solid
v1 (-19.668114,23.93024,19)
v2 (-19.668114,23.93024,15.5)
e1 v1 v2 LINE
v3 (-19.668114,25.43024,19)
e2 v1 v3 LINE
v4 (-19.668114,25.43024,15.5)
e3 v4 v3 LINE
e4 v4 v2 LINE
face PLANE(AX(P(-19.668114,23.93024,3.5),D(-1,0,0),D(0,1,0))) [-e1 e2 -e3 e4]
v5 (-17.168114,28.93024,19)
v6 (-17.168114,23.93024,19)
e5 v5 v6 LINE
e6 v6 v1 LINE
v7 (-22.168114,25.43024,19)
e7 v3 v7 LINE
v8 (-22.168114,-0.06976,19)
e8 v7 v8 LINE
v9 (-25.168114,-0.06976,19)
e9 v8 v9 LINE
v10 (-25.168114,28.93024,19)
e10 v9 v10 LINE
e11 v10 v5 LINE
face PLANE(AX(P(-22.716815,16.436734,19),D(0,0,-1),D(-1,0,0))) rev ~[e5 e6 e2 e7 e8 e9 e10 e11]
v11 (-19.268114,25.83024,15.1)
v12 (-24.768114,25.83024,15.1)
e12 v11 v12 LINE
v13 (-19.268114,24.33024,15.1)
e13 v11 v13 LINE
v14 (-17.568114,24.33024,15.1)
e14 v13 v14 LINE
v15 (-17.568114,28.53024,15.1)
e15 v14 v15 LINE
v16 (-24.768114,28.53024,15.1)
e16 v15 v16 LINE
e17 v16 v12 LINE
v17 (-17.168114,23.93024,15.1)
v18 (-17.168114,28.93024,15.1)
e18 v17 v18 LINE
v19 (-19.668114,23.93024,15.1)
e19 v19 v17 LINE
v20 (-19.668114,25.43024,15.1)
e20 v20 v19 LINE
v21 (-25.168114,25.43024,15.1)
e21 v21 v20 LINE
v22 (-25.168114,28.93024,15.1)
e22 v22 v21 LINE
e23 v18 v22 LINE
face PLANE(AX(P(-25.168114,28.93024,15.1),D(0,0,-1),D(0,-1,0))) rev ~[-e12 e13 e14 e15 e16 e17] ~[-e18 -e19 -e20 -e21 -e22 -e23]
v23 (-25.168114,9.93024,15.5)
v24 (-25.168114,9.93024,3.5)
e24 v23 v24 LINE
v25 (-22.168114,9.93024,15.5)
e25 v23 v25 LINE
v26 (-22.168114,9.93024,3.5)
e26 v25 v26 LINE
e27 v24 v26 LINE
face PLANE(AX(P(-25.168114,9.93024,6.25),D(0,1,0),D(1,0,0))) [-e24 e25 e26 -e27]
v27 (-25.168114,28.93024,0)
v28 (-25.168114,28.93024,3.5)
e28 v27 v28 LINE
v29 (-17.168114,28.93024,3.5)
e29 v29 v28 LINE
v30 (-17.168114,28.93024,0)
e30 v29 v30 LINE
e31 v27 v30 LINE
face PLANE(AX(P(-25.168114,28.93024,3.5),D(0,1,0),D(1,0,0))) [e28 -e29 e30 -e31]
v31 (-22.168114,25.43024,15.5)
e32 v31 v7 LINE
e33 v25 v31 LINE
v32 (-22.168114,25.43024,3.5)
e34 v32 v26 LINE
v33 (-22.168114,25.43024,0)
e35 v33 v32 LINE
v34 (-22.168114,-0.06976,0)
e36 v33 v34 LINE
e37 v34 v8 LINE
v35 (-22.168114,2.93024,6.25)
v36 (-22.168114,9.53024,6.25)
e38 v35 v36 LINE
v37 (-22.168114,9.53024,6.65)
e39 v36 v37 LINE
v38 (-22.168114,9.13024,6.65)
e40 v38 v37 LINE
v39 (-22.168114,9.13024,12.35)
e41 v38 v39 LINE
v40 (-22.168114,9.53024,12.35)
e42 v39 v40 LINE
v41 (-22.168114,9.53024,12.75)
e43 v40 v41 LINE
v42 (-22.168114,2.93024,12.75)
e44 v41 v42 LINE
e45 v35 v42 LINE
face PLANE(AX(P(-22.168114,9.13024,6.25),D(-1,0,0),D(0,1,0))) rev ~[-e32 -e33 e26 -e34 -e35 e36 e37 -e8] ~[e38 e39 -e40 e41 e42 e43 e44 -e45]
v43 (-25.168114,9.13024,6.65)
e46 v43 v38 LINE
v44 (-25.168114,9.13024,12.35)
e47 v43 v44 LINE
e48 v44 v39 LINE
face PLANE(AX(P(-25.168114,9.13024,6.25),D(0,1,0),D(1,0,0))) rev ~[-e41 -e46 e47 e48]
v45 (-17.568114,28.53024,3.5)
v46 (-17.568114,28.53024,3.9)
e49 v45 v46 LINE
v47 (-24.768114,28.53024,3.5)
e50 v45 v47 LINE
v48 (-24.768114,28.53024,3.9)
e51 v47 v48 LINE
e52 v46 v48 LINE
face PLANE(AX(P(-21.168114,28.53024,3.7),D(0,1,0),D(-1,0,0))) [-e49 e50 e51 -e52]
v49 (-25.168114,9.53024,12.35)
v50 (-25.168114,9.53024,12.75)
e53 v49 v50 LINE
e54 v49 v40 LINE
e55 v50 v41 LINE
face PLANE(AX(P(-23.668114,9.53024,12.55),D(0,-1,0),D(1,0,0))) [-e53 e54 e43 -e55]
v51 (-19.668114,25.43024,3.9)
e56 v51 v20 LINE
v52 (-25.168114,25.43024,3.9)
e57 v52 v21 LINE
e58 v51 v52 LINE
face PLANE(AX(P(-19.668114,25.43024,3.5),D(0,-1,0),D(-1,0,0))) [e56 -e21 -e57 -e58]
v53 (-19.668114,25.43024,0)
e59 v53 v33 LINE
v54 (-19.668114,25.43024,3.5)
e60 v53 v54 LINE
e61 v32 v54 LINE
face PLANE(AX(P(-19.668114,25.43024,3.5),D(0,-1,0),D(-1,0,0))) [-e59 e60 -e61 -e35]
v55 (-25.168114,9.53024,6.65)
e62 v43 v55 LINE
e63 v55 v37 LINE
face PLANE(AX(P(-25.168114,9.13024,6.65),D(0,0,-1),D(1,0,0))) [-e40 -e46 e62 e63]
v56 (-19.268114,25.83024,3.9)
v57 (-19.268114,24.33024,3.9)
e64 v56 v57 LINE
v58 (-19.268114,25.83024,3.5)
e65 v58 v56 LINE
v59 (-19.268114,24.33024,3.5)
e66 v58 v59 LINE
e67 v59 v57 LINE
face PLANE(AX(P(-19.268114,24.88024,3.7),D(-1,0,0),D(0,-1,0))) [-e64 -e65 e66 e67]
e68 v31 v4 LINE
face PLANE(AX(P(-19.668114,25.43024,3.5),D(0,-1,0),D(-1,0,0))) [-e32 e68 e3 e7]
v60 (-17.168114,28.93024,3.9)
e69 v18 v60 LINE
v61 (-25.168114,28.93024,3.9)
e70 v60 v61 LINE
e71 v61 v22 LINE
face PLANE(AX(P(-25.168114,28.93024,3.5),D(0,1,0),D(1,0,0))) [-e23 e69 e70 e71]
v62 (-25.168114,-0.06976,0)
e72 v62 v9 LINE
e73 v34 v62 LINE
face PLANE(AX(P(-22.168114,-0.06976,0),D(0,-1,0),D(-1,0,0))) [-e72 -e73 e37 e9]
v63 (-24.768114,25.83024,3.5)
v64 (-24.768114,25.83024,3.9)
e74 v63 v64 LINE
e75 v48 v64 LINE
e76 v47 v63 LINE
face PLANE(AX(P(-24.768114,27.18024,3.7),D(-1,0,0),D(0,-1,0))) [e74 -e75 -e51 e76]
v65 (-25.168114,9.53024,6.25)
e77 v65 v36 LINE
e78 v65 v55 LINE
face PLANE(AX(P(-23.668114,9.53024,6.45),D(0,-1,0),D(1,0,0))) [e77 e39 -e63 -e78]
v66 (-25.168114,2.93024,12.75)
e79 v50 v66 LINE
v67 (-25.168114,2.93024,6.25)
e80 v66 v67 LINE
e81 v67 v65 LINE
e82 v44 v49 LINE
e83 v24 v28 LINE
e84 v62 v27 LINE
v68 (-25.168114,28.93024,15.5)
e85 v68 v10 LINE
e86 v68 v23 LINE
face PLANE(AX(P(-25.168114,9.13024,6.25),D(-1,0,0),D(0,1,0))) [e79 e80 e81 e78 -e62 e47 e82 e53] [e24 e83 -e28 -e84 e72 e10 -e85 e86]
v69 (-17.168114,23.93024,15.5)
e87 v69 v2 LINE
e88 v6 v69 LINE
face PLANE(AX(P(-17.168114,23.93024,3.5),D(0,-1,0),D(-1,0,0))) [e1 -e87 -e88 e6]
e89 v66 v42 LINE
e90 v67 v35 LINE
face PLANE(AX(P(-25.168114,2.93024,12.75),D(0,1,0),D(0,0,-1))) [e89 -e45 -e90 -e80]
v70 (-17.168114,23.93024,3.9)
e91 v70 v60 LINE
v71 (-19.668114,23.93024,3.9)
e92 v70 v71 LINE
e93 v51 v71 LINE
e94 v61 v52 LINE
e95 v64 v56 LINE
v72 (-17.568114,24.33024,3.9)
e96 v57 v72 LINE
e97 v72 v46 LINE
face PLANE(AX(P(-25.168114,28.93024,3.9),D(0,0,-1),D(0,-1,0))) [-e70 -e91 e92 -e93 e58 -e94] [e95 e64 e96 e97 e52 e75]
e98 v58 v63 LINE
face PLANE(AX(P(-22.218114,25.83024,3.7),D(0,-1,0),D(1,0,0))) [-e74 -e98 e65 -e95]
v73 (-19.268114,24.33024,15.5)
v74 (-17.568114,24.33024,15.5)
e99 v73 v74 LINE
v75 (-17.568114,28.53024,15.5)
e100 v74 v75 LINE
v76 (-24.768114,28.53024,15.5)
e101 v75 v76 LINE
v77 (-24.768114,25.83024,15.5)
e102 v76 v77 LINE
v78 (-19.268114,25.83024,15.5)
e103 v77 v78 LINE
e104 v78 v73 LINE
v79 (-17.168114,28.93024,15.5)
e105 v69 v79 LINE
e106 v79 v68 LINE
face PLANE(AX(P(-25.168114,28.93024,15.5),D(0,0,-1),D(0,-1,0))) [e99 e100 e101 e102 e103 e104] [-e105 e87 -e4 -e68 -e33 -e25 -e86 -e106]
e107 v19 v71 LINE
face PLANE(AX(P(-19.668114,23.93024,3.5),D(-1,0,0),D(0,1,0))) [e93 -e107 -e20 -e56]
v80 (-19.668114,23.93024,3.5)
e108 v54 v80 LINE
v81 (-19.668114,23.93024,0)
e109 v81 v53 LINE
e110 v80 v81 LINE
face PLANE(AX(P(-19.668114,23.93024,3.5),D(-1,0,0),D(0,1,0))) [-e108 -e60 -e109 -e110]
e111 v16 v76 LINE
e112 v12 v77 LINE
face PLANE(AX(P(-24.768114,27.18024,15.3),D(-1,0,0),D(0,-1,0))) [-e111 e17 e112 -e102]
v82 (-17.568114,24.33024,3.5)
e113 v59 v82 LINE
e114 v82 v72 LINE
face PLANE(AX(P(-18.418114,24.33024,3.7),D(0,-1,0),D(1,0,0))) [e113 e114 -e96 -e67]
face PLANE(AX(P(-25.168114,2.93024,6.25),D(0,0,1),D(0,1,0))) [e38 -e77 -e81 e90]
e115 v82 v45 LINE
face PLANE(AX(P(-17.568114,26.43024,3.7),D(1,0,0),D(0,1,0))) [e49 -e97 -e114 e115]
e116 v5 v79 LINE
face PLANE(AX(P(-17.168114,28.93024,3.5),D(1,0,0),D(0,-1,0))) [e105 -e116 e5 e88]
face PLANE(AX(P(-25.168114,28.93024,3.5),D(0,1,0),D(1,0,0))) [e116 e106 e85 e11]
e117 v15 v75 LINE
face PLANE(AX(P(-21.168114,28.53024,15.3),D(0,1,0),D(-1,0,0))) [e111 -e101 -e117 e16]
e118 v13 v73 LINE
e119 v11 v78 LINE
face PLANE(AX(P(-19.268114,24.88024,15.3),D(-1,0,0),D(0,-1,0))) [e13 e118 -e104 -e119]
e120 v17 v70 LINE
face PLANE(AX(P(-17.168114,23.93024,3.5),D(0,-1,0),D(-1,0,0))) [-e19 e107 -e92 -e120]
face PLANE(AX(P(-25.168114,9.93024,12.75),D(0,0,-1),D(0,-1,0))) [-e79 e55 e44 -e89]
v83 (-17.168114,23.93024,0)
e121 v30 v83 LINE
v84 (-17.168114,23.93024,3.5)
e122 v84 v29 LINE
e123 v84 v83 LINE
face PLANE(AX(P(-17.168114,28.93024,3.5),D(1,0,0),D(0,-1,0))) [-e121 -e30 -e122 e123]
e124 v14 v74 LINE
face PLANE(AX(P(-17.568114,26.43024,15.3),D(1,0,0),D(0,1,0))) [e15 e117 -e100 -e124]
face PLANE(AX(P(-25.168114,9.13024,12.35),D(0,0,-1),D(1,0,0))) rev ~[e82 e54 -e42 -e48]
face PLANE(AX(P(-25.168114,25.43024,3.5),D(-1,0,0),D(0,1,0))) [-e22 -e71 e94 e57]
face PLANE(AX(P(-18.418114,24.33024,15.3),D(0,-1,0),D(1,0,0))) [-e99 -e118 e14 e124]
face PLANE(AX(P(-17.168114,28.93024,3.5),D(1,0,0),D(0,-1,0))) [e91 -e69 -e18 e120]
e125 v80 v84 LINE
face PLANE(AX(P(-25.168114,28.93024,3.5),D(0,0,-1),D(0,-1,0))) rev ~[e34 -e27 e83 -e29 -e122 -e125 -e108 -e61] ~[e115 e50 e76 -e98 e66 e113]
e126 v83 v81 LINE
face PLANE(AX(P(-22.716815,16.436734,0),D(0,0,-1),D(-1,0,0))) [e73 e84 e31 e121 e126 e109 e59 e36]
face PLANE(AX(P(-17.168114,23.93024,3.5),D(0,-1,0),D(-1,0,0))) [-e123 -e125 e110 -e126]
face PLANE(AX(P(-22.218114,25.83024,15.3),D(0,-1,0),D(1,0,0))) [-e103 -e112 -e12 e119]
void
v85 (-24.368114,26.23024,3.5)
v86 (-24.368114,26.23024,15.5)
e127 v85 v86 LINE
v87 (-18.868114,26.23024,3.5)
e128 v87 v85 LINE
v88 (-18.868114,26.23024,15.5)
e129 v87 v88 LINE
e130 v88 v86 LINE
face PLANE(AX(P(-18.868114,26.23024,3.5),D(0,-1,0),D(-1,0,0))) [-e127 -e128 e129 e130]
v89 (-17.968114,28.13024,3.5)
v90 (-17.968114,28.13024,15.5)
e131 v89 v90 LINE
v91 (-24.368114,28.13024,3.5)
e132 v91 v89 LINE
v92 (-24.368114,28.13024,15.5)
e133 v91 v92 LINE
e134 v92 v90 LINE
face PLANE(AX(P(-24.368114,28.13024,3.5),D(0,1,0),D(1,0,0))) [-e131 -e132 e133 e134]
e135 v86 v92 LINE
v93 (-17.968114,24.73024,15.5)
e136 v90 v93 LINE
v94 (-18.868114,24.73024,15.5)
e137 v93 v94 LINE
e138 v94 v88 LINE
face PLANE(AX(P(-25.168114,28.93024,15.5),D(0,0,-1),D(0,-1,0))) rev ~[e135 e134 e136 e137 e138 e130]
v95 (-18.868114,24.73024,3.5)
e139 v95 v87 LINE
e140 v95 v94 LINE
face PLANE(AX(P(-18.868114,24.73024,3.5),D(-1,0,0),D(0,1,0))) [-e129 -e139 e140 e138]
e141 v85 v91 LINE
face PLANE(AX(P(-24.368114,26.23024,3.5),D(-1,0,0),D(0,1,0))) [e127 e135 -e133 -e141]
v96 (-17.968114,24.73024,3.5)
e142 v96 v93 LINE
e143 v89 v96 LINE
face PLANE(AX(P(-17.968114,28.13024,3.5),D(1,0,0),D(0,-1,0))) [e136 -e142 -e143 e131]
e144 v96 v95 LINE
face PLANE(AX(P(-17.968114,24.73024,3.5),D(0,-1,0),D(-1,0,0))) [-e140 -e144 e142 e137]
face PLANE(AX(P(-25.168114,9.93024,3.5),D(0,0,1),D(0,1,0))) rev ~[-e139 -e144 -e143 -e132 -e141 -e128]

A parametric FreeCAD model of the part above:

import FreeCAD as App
import Part
import Sketcher

V = App.Vector
Q = App.Units.Quantity

doc = App.newDocument("Part")
params = doc.addObject("Spreadsheet::Sheet", "Params")
for row, (alias, value) in enumerate([
    ("sketch1_width", "8 mm"),
    ("sketch1_width2", "3 mm"),
    ("sketch1_height", "29 mm"),
    ("sketch1_height2", "5 mm"),
    ("sketch1_height3", "25.5 mm"),
    ("pad1_length", "19 mm"),
    ("sketch2_width", "19 mm"),
    ("sketch2_width2", "7 mm"),
    ("sketch2_height", "12 mm"),
    ("sketch2_height2", "6.5 mm"),
    ("sketch3_width", "8 mm"),
    ("sketch3_height", "5 mm"),
    ("sketch3_width2", "5.5 mm"),
    ("sketch3_width3", "6.4 mm"),
    ("sketch3_height2", "3.5 mm"),
    ("pad2_length", "12 mm"),
    ("sketch4_width", "3.5 mm"),
    ("sketch4_height", "0.4 mm"),
    ("pocket2_length", "0.4 mm"),
    ("sketch5_width", "5 mm"),
    ("sketch5_height", "0.4 mm"),
    ("pocket3_length", "0.4 mm"),
    ("sketch6_width", "1.9 mm"),
    ("sketch6_height", "0.4 mm"),
    ("pocket4_length", "0.4 mm"),
    ("sketch7_width", "5.1 mm"),
    ("sketch7_height", "0.4 mm"),
    ("pocket5_length", "0.4 mm"),
    ("sketch8_width", "1.7 mm"),
    ("sketch8_height", "0.4 mm"),
    ("pocket6_length", "0.4 mm"),
    ("sketch9_width", "7.2 mm"),
    ("sketch9_height", "0.4 mm"),
    ("pocket7_length", "0.4 mm"),
    ("sketch10_width", "3 mm"),
    ("sketch10_height", "0.8 mm"),
    ("pad3_length", "7 mm"),
    ("sketch11_width", "3 mm"),
    ("sketch11_height", "0.4 mm"),
    ("pocket8_length", "0.4 mm"),
], start=1):
    params.set(f"A{row}", alias)
    params.set(f"B{row}", "=" + value)
    params.setAlias(f"B{row}", alias)

body = doc.addObject("PartDesign::Body", "Body")

sketch1 = body.newObject("Sketcher::SketchObject", "Sketch")
sketch1.AttachmentSupport = (doc.getObject("XY_Plane"), [""])
sketch1.MapMode = "FlatFace"
sketch1.addGeometry(Part.LineSegment(V(-17.2, 28.9, 0), V(-25.2, 28.9, 0)), False)
sketch1.addGeometry(Part.LineSegment(V(-25.2, 28.9, 0), V(-25.2, -0.1, 0)), False)
sketch1.addGeometry(Part.LineSegment(V(-25.2, -0.1, 0), V(-22.2, -0.1, 0)), False)
sketch1.addGeometry(Part.LineSegment(V(-22.2, -0.1, 0), V(-22.2, 25.4, 0)), False)
sketch1.addGeometry(Part.LineSegment(V(-22.2, 25.4, 0), V(-19.7, 25.4, 0)), False)
sketch1.addGeometry(Part.LineSegment(V(-19.7, 25.4, 0), V(-19.7, 23.9, 0)), False)
sketch1.addGeometry(Part.LineSegment(V(-19.7, 23.9, 0), V(-17.2, 23.9, 0)), False)
sketch1.addGeometry(Part.LineSegment(V(-17.2, 23.9, 0), V(-17.2, 28.9, 0)), False)
sketch1.addConstraint(Sketcher.Constraint("Coincident", 0, 2, 1, 1))
sketch1.addConstraint(Sketcher.Constraint("Coincident", 1, 2, 2, 1))
sketch1.addConstraint(Sketcher.Constraint("Coincident", 2, 2, 3, 1))
sketch1.addConstraint(Sketcher.Constraint("Coincident", 3, 2, 4, 1))
sketch1.addConstraint(Sketcher.Constraint("Coincident", 4, 2, 5, 1))
sketch1.addConstraint(Sketcher.Constraint("Coincident", 5, 2, 6, 1))
sketch1.addConstraint(Sketcher.Constraint("Coincident", 6, 2, 7, 1))
sketch1.addConstraint(Sketcher.Constraint("Coincident", 7, 2, 0, 1))
sketch1.addConstraint(Sketcher.Constraint("Horizontal", 0))
sketch1.addConstraint(Sketcher.Constraint("Vertical", 1))
sketch1.addConstraint(Sketcher.Constraint("Horizontal", 2))
sketch1.addConstraint(Sketcher.Constraint("Vertical", 3))
sketch1.addConstraint(Sketcher.Constraint("Horizontal", 4))
sketch1.addConstraint(Sketcher.Constraint("Vertical", 5))
sketch1.addConstraint(Sketcher.Constraint("Horizontal", 6))
sketch1.addConstraint(Sketcher.Constraint("Vertical", 7))
sketch1.addConstraint(Sketcher.Constraint("Equal", 4, 6))
sketch1.addConstraint(Sketcher.Constraint("DistanceX", 0, 2, 0, 1, Q("8 mm")))
sketch1.addConstraint(Sketcher.Constraint("DistanceX", 2, 1, 2, 2, Q("3 mm")))
sketch1.addConstraint(Sketcher.Constraint("DistanceY", 1, 2, 1, 1, Q("29 mm")))
sketch1.addConstraint(Sketcher.Constraint("DistanceY", 7, 1, 7, 2, Q("5 mm")))
sketch1.addConstraint(Sketcher.Constraint("DistanceY", 3, 1, 3, 2, Q("25.5 mm")))
sketch1.addConstraint(Sketcher.Constraint("DistanceY", -1, 1, 0, 2, Q("28.93024 mm")))
sketch1.addConstraint(Sketcher.Constraint("DistanceX", 0, 2, -1, 1, Q("25.168114 mm")))
sketch1.setExpression("Constraints[17]", "Params.sketch1_width")
sketch1.setExpression("Constraints[18]", "Params.sketch1_width2")
sketch1.setExpression("Constraints[19]", "Params.sketch1_height")
sketch1.setExpression("Constraints[20]", "Params.sketch1_height2")
sketch1.setExpression("Constraints[21]", "Params.sketch1_height3")
pad1 = body.newObject("PartDesign::Pad", "Pad")
pad1.Profile = sketch1
pad1.setExpression("Length", "Params.pad1_length")

sketch2 = body.newObject("Sketcher::SketchObject", "Sketch001")
sketch2.AttachmentSupport = (doc.getObject("YZ_Plane"), [""])
sketch2.MapMode = "FlatFace"
sketch2.AttachmentOffset = App.Placement(V(0, 0, -25.168114), App.Rotation())
sketch2.addGeometry(Part.LineSegment(V(9.9, 15.5, 0), V(28.9, 15.5, 0)), False)
sketch2.addGeometry(Part.LineSegment(V(28.9, 15.5, 0), V(28.9, 3.5, 0)), False)
sketch2.addGeometry(Part.LineSegment(V(28.9, 3.5, 0), V(9.9, 3.5, 0)), False)
sketch2.addGeometry(Part.LineSegment(V(9.9, 3.5, 0), V(9.9, 6.2, 0)), False)
sketch2.addGeometry(Part.LineSegment(V(9.9, 6.2, 0), V(2.9, 6.2, 0)), False)
sketch2.addGeometry(Part.LineSegment(V(2.9, 6.2, 0), V(2.9, 12.8, 0)), False)
sketch2.addGeometry(Part.LineSegment(V(2.9, 12.8, 0), V(9.9, 12.8, 0)), False)
sketch2.addGeometry(Part.LineSegment(V(9.9, 12.8, 0), V(9.9, 15.5, 0)), False)
sketch2.addConstraint(Sketcher.Constraint("Coincident", 0, 2, 1, 1))
sketch2.addConstraint(Sketcher.Constraint("Coincident", 1, 2, 2, 1))
sketch2.addConstraint(Sketcher.Constraint("Coincident", 2, 2, 3, 1))
sketch2.addConstraint(Sketcher.Constraint("Coincident", 3, 2, 4, 1))
sketch2.addConstraint(Sketcher.Constraint("Coincident", 4, 2, 5, 1))
sketch2.addConstraint(Sketcher.Constraint("Coincident", 5, 2, 6, 1))
sketch2.addConstraint(Sketcher.Constraint("Coincident", 6, 2, 7, 1))
sketch2.addConstraint(Sketcher.Constraint("Coincident", 7, 2, 0, 1))
sketch2.addConstraint(Sketcher.Constraint("Horizontal", 0))
sketch2.addConstraint(Sketcher.Constraint("Vertical", 1))
sketch2.addConstraint(Sketcher.Constraint("Horizontal", 2))
sketch2.addConstraint(Sketcher.Constraint("Vertical", 3))
sketch2.addConstraint(Sketcher.Constraint("Horizontal", 4))
sketch2.addConstraint(Sketcher.Constraint("Vertical", 5))
sketch2.addConstraint(Sketcher.Constraint("Horizontal", 6))
sketch2.addConstraint(Sketcher.Constraint("Vertical", 7))
sketch2.addConstraint(Sketcher.Constraint("Vertical", 3, 2, 6, 2))
sketch2.addConstraint(Sketcher.Constraint("Equal", 3, 7))
sketch2.addConstraint(Sketcher.Constraint("DistanceX", 0, 1, 0, 2, Q("19 mm")))
sketch2.addConstraint(Sketcher.Constraint("DistanceX", 4, 2, 4, 1, Q("7 mm")))
sketch2.addConstraint(Sketcher.Constraint("DistanceY", 1, 2, 1, 1, Q("12 mm")))
sketch2.addConstraint(Sketcher.Constraint("DistanceY", 5, 1, 5, 2, Q("6.5 mm")))
sketch2.addConstraint(Sketcher.Constraint("DistanceY", -1, 1, 0, 2, Q("15.5 mm")))
sketch2.addConstraint(Sketcher.Constraint("DistanceX", -1, 1, 0, 2, Q("28.93024 mm")))
sketch2.setExpression("Constraints[18]", "Params.sketch2_width")
sketch2.setExpression("Constraints[19]", "Params.sketch2_width2")
sketch2.setExpression("Constraints[20]", "Params.sketch2_height")
sketch2.setExpression("Constraints[21]", "Params.sketch2_height2")
pocket1 = body.newObject("PartDesign::Pocket", "Pocket")
pocket1.Profile = sketch2
pocket1.Type = "ThroughAll"
pocket1.Reversed = True

sketch3 = body.newObject("Sketcher::SketchObject", "Sketch002")
sketch3.AttachmentSupport = (doc.getObject("XY_Plane"), [""])
sketch3.MapMode = "FlatFace"
sketch3.AttachmentOffset = App.Placement(V(0, 0, 3.5), App.Rotation())
sketch3.addGeometry(Part.LineSegment(V(-17.2, 28.9, 0), V(-25.2, 28.9, 0)), False)
sketch3.addGeometry(Part.LineSegment(V(-25.2, 28.9, 0), V(-25.2, 25.4, 0)), False)
sketch3.addGeometry(Part.LineSegment(V(-25.2, 25.4, 0), V(-19.7, 25.4, 0)), False)
sketch3.addGeometry(Part.LineSegment(V(-19.7, 25.4, 0), V(-19.7, 23.9, 0)), False)
sketch3.addGeometry(Part.LineSegment(V(-19.7, 23.9, 0), V(-17.2, 23.9, 0)), False)
sketch3.addGeometry(Part.LineSegment(V(-17.2, 23.9, 0), V(-17.2, 28.9, 0)), False)
sketch3.addGeometry(Part.LineSegment(V(-24.4, 26.2, 0), V(-24.4, 28.1, 0)), False)
sketch3.addGeometry(Part.LineSegment(V(-24.4, 28.1, 0), V(-18, 28.1, 0)), False)
sketch3.addGeometry(Part.LineSegment(V(-18, 28.1, 0), V(-18, 24.7, 0)), False)
sketch3.addGeometry(Part.LineSegment(V(-18, 24.7, 0), V(-18.9, 24.7, 0)), False)
sketch3.addGeometry(Part.LineSegment(V(-18.9, 24.7, 0), V(-18.9, 26.2, 0)), False)
sketch3.addGeometry(Part.LineSegment(V(-18.9, 26.2, 0), V(-24.4, 26.2, 0)), False)
sketch3.addConstraint(Sketcher.Constraint("Coincident", 0, 2, 1, 1))
sketch3.addConstraint(Sketcher.Constraint("Coincident", 1, 2, 2, 1))
sketch3.addConstraint(Sketcher.Constraint("Coincident", 2, 2, 3, 1))
sketch3.addConstraint(Sketcher.Constraint("Coincident", 3, 2, 4, 1))
sketch3.addConstraint(Sketcher.Constraint("Coincident", 4, 2, 5, 1))
sketch3.addConstraint(Sketcher.Constraint("Coincident", 5, 2, 0, 1))
sketch3.addConstraint(Sketcher.Constraint("Coincident", 6, 2, 7, 1))
sketch3.addConstraint(Sketcher.Constraint("Coincident", 7, 2, 8, 1))
sketch3.addConstraint(Sketcher.Constraint("Coincident", 8, 2, 9, 1))
sketch3.addConstraint(Sketcher.Constraint("Coincident", 9, 2, 10, 1))
sketch3.addConstraint(Sketcher.Constraint("Coincident", 10, 2, 11, 1))
sketch3.addConstraint(Sketcher.Constraint("Coincident", 11, 2, 6, 1))
sketch3.addConstraint(Sketcher.Constraint("Horizontal", 0))
sketch3.addConstraint(Sketcher.Constraint("Vertical", 1))
sketch3.addConstraint(Sketcher.Constraint("Horizontal", 2))
sketch3.addConstraint(Sketcher.Constraint("Vertical", 3))
sketch3.addConstraint(Sketcher.Constraint("Horizontal", 4))
sketch3.addConstraint(Sketcher.Constraint("Vertical", 5))
sketch3.addConstraint(Sketcher.Constraint("Vertical", 6))
sketch3.addConstraint(Sketcher.Constraint("Horizontal", 7))
sketch3.addConstraint(Sketcher.Constraint("Vertical", 8))
sketch3.addConstraint(Sketcher.Constraint("Horizontal", 9))
sketch3.addConstraint(Sketcher.Constraint("Vertical", 10))
sketch3.addConstraint(Sketcher.Constraint("Horizontal", 11))
sketch3.addConstraint(Sketcher.Constraint("Equal", 2, 11))
sketch3.addConstraint(Sketcher.Constraint("Equal", 3, 10))
sketch3.addConstraint(Sketcher.Constraint("DistanceX", 0, 2, 0, 1, Q("8 mm")))
sketch3.addConstraint(Sketcher.Constraint("DistanceY", 5, 1, 5, 2, Q("5 mm")))
sketch3.addConstraint(Sketcher.Constraint("DistanceX", 2, 1, 2, 2, Q("5.5 mm")))
sketch3.addConstraint(Sketcher.Constraint("DistanceX", 7, 1, 7, 2, Q("6.4 mm")))
sketch3.addConstraint(Sketcher.Constraint("DistanceY", 1, 2, 1, 1, Q("3.5 mm")))
sketch3.addConstraint(Sketcher.Constraint("DistanceY", 6, 1, 6, 2, Q("1.9 mm")))
sketch3.addConstraint(Sketcher.Constraint("DistanceX", 0, 2, 6, 2, Q("0.8 mm")))
sketch3.addConstraint(Sketcher.Constraint("DistanceY", 6, 2, 0, 2, Q("0.8 mm")))
sketch3.addConstraint(Sketcher.Constraint("DistanceY", -1, 1, 0, 2, Q("28.93024 mm")))
sketch3.addConstraint(Sketcher.Constraint("DistanceX", 0, 2, -1, 1, Q("25.168114 mm")))
sketch3.setExpression("Constraints[26]", "Params.sketch3_width")
sketch3.setExpression("Constraints[27]", "Params.sketch3_height")
sketch3.setExpression("Constraints[28]", "Params.sketch3_width2")
sketch3.setExpression("Constraints[29]", "Params.sketch3_width3")
sketch3.setExpression("Constraints[30]", "Params.sketch3_height2")
pad2 = body.newObject("PartDesign::Pad", "Pad001")
pad2.Profile = sketch3
pad2.setExpression("Length", "Params.pad2_length")

sketch4 = body.newObject("Sketcher::SketchObject", "Sketch003")
sketch4.AttachmentSupport = (doc.getObject("YZ_Plane"), [""])
sketch4.MapMode = "FlatFace"
sketch4.AttachmentOffset = App.Placement(V(0, 0, -25.168114), App.Rotation())
sketch4.addGeometry(Part.LineSegment(V(28.93, 15.5, 0), V(28.93, 15.1, 0)), False)
sketch4.addGeometry(Part.LineSegment(V(28.93, 15.1, 0), V(25.43, 15.1, 0)), False)
sketch4.addGeometry(Part.LineSegment(V(25.43, 15.1, 0), V(25.43, 15.5, 0)), False)
sketch4.addGeometry(Part.LineSegment(V(25.43, 15.5, 0), V(28.93, 15.5, 0)), False)
sketch4.addGeometry(Part.LineSegment(V(28.93, 3.9, 0), V(28.93, 3.5, 0)), False)
sketch4.addGeometry(Part.LineSegment(V(28.93, 3.5, 0), V(25.43, 3.5, 0)), False)
sketch4.addGeometry(Part.LineSegment(V(25.43, 3.5, 0), V(25.43, 3.9, 0)), False)
sketch4.addGeometry(Part.LineSegment(V(25.43, 3.9, 0), V(28.93, 3.9, 0)), False)
sketch4.addConstraint(Sketcher.Constraint("Coincident", 0, 2, 1, 1))
sketch4.addConstraint(Sketcher.Constraint("Coincident", 1, 2, 2, 1))
sketch4.addConstraint(Sketcher.Constraint("Coincident", 2, 2, 3, 1))
sketch4.addConstraint(Sketcher.Constraint("Coincident", 3, 2, 0, 1))
sketch4.addConstraint(Sketcher.Constraint("Coincident", 4, 2, 5, 1))
sketch4.addConstraint(Sketcher.Constraint("Coincident", 5, 2, 6, 1))
sketch4.addConstraint(Sketcher.Constraint("Coincident", 6, 2, 7, 1))
sketch4.addConstraint(Sketcher.Constraint("Coincident", 7, 2, 4, 1))
sketch4.addConstraint(Sketcher.Constraint("Vertical", 0))
sketch4.addConstraint(Sketcher.Constraint("Horizontal", 1))
sketch4.addConstraint(Sketcher.Constraint("Vertical", 2))
sketch4.addConstraint(Sketcher.Constraint("Horizontal", 3))
sketch4.addConstraint(Sketcher.Constraint("Vertical", 4))
sketch4.addConstraint(Sketcher.Constraint("Horizontal", 5))
sketch4.addConstraint(Sketcher.Constraint("Vertical", 6))
sketch4.addConstraint(Sketcher.Constraint("Horizontal", 7))
sketch4.addConstraint(Sketcher.Constraint("Vertical", 3, 2, 4, 2))
sketch4.addConstraint(Sketcher.Constraint("Vertical", 2, 2, 5, 2))
sketch4.addConstraint(Sketcher.Constraint("Equal", 2, 4))
sketch4.addConstraint(Sketcher.Constraint("DistanceX", 1, 2, 1, 1, Q("3.5 mm")))
sketch4.addConstraint(Sketcher.Constraint("DistanceY", 0, 2, 0, 1, Q("0.4 mm")))
sketch4.addConstraint(Sketcher.Constraint("DistanceY", 4, 2, 3, 2, Q("12 mm")))
sketch4.addConstraint(Sketcher.Constraint("DistanceY", -1, 1, 0, 2, Q("15.1 mm")))
sketch4.addConstraint(Sketcher.Constraint("DistanceX", -1, 1, 0, 2, Q("28.93024 mm")))
sketch4.setExpression("Constraints[19]", "Params.sketch4_width")
sketch4.setExpression("Constraints[20]", "Params.sketch4_height")
pocket2 = body.newObject("PartDesign::Pocket", "Pocket001")
pocket2.Profile = sketch4
pocket2.setExpression("Length", "Params.pocket2_length")
pocket2.Reversed = True

sketch5 = body.newObject("Sketcher::SketchObject", "Sketch004")
sketch5.AttachmentSupport = (doc.getObject("YZ_Plane"), [""])
sketch5.MapMode = "FlatFace"
sketch5.AttachmentOffset = App.Placement(V(0, 0, -17.168114), App.Rotation())
sketch5.addGeometry(Part.LineSegment(V(23.93, 15.5, 0), V(23.93, 15.1, 0)), False)
sketch5.addGeometry(Part.LineSegment(V(23.93, 15.1, 0), V(28.93, 15.1, 0)), False)
sketch5.addGeometry(Part.LineSegment(V(28.93, 15.1, 0), V(28.93, 15.5, 0)), False)
sketch5.addGeometry(Part.LineSegment(V(28.93, 15.5, 0), V(23.93, 15.5, 0)), False)
sketch5.addGeometry(Part.LineSegment(V(23.93, 3.9, 0), V(23.93, 3.5, 0)), False)
sketch5.addGeometry(Part.LineSegment(V(23.93, 3.5, 0), V(28.93, 3.5, 0)), False)
sketch5.addGeometry(Part.LineSegment(V(28.93, 3.5, 0), V(28.93, 3.9, 0)), False)
sketch5.addGeometry(Part.LineSegment(V(28.93, 3.9, 0), V(23.93, 3.9, 0)), False)
sketch5.addConstraint(Sketcher.Constraint("Coincident", 0, 2, 1, 1))
sketch5.addConstraint(Sketcher.Constraint("Coincident", 1, 2, 2, 1))
sketch5.addConstraint(Sketcher.Constraint("Coincident", 2, 2, 3, 1))
sketch5.addConstraint(Sketcher.Constraint("Coincident", 3, 2, 0, 1))
sketch5.addConstraint(Sketcher.Constraint("Coincident", 4, 2, 5, 1))
sketch5.addConstraint(Sketcher.Constraint("Coincident", 5, 2, 6, 1))
sketch5.addConstraint(Sketcher.Constraint("Coincident", 6, 2, 7, 1))
sketch5.addConstraint(Sketcher.Constraint("Coincident", 7, 2, 4, 1))
sketch5.addConstraint(Sketcher.Constraint("Vertical", 0))
sketch5.addConstraint(Sketcher.Constraint("Horizontal", 1))
sketch5.addConstraint(Sketcher.Constraint("Vertical", 2))
sketch5.addConstraint(Sketcher.Constraint("Horizontal", 3))
sketch5.addConstraint(Sketcher.Constraint("Vertical", 4))
sketch5.addConstraint(Sketcher.Constraint("Horizontal", 5))
sketch5.addConstraint(Sketcher.Constraint("Vertical", 6))
sketch5.addConstraint(Sketcher.Constraint("Horizontal", 7))
sketch5.addConstraint(Sketcher.Constraint("Vertical", 3, 2, 4, 2))
sketch5.addConstraint(Sketcher.Constraint("Vertical", 2, 2, 5, 2))
sketch5.addConstraint(Sketcher.Constraint("Equal", 2, 4))
sketch5.addConstraint(Sketcher.Constraint("DistanceX", 1, 1, 1, 2, Q("5 mm")))
sketch5.addConstraint(Sketcher.Constraint("DistanceY", 0, 2, 0, 1, Q("0.4 mm")))
sketch5.addConstraint(Sketcher.Constraint("DistanceY", 4, 2, 3, 2, Q("12 mm")))
sketch5.addConstraint(Sketcher.Constraint("DistanceY", -1, 1, 0, 2, Q("15.1 mm")))
sketch5.addConstraint(Sketcher.Constraint("DistanceX", -1, 1, 0, 2, Q("23.93024 mm")))
sketch5.setExpression("Constraints[19]", "Params.sketch5_width")
sketch5.setExpression("Constraints[20]", "Params.sketch5_height")
pocket3 = body.newObject("PartDesign::Pocket", "Pocket002")
pocket3.Profile = sketch5
pocket3.setExpression("Length", "Params.pocket3_length")

sketch6 = body.newObject("Sketcher::SketchObject", "Sketch005")
sketch6.AttachmentSupport = (doc.getObject("YZ_Plane"), [""])
sketch6.MapMode = "FlatFace"
sketch6.AttachmentOffset = App.Placement(V(0, 0, -19.668114), App.Rotation())
sketch6.addGeometry(Part.LineSegment(V(25.83, 15.5, 0), V(25.83, 15.1, 0)), False)
sketch6.addGeometry(Part.LineSegment(V(25.83, 15.1, 0), V(23.93, 15.1, 0)), False)
sketch6.addGeometry(Part.LineSegment(V(23.93, 15.1, 0), V(23.93, 15.5, 0)), False)
sketch6.addGeometry(Part.LineSegment(V(23.93, 15.5, 0), V(25.83, 15.5, 0)), False)
sketch6.addGeometry(Part.LineSegment(V(25.83, 3.9, 0), V(25.83, 3.5, 0)), False)
sketch6.addGeometry(Part.LineSegment(V(25.83, 3.5, 0), V(23.93, 3.5, 0)), False)
sketch6.addGeometry(Part.LineSegment(V(23.93, 3.5, 0), V(23.93, 3.9, 0)), False)
sketch6.addGeometry(Part.LineSegment(V(23.93, 3.9, 0), V(25.83, 3.9, 0)), False)
sketch6.addConstraint(Sketcher.Constraint("Coincident", 0, 2, 1, 1))
sketch6.addConstraint(Sketcher.Constraint("Coincident", 1, 2, 2, 1))
sketch6.addConstraint(Sketcher.Constraint("Coincident", 2, 2, 3, 1))
sketch6.addConstraint(Sketcher.Constraint("Coincident", 3, 2, 0, 1))
sketch6.addConstraint(Sketcher.Constraint("Coincident", 4, 2, 5, 1))
sketch6.addConstraint(Sketcher.Constraint("Coincident", 5, 2, 6, 1))
sketch6.addConstraint(Sketcher.Constraint("Coincident", 6, 2, 7, 1))
sketch6.addConstraint(Sketcher.Constraint("Coincident", 7, 2, 4, 1))
sketch6.addConstraint(Sketcher.Constraint("Vertical", 0))
sketch6.addConstraint(Sketcher.Constraint("Horizontal", 1))
sketch6.addConstraint(Sketcher.Constraint("Vertical", 2))
sketch6.addConstraint(Sketcher.Constraint("Horizontal", 3))
sketch6.addConstraint(Sketcher.Constraint("Vertical", 4))
sketch6.addConstraint(Sketcher.Constraint("Horizontal", 5))
sketch6.addConstraint(Sketcher.Constraint("Vertical", 6))
sketch6.addConstraint(Sketcher.Constraint("Horizontal", 7))
sketch6.addConstraint(Sketcher.Constraint("Vertical", 3, 2, 4, 2))
sketch6.addConstraint(Sketcher.Constraint("Vertical", 2, 2, 5, 2))
sketch6.addConstraint(Sketcher.Constraint("Equal", 2, 4))
sketch6.addConstraint(Sketcher.Constraint("DistanceX", 1, 2, 1, 1, Q("1.9 mm")))
sketch6.addConstraint(Sketcher.Constraint("DistanceY", 0, 2, 0, 1, Q("0.4 mm")))
sketch6.addConstraint(Sketcher.Constraint("DistanceY", 4, 2, 3, 2, Q("12 mm")))
sketch6.addConstraint(Sketcher.Constraint("DistanceY", -1, 1, 0, 2, Q("15.1 mm")))
sketch6.addConstraint(Sketcher.Constraint("DistanceX", -1, 1, 0, 2, Q("25.83024 mm")))
sketch6.setExpression("Constraints[19]", "Params.sketch6_width")
sketch6.setExpression("Constraints[20]", "Params.sketch6_height")
pocket4 = body.newObject("PartDesign::Pocket", "Pocket003")
pocket4.Profile = sketch6
pocket4.setExpression("Length", "Params.pocket4_length")
pocket4.Reversed = True

sketch7 = body.newObject("Sketcher::SketchObject", "Sketch006")
sketch7.AttachmentSupport = (doc.getObject("XZ_Plane"), [""])
sketch7.MapMode = "FlatFace"
sketch7.AttachmentOffset = App.Placement(V(0, 0, -25.43024), App.Rotation())
sketch7.addGeometry(Part.LineSegment(V(-24.77, 15.5, 0), V(-24.77, 15.1, 0)), False)
sketch7.addGeometry(Part.LineSegment(V(-24.77, 15.1, 0), V(-19.67, 15.1, 0)), False)
sketch7.addGeometry(Part.LineSegment(V(-19.67, 15.1, 0), V(-19.67, 15.5, 0)), False)
sketch7.addGeometry(Part.LineSegment(V(-19.67, 15.5, 0), V(-24.77, 15.5, 0)), False)
sketch7.addGeometry(Part.LineSegment(V(-24.77, 3.9, 0), V(-24.77, 3.5, 0)), False)
sketch7.addGeometry(Part.LineSegment(V(-24.77, 3.5, 0), V(-19.67, 3.5, 0)), False)
sketch7.addGeometry(Part.LineSegment(V(-19.67, 3.5, 0), V(-19.67, 3.9, 0)), False)
sketch7.addGeometry(Part.LineSegment(V(-19.67, 3.9, 0), V(-24.77, 3.9, 0)), False)
sketch7.addConstraint(Sketcher.Constraint("Coincident", 0, 2, 1, 1))
sketch7.addConstraint(Sketcher.Constraint("Coincident", 1, 2, 2, 1))
sketch7.addConstraint(Sketcher.Constraint("Coincident", 2, 2, 3, 1))
sketch7.addConstraint(Sketcher.Constraint("Coincident", 3, 2, 0, 1))
sketch7.addConstraint(Sketcher.Constraint("Coincident", 4, 2, 5, 1))
sketch7.addConstraint(Sketcher.Constraint("Coincident", 5, 2, 6, 1))
sketch7.addConstraint(Sketcher.Constraint("Coincident", 6, 2, 7, 1))
sketch7.addConstraint(Sketcher.Constraint("Coincident", 7, 2, 4, 1))
sketch7.addConstraint(Sketcher.Constraint("Vertical", 0))
sketch7.addConstraint(Sketcher.Constraint("Horizontal", 1))
sketch7.addConstraint(Sketcher.Constraint("Vertical", 2))
sketch7.addConstraint(Sketcher.Constraint("Horizontal", 3))
sketch7.addConstraint(Sketcher.Constraint("Vertical", 4))
sketch7.addConstraint(Sketcher.Constraint("Horizontal", 5))
sketch7.addConstraint(Sketcher.Constraint("Vertical", 6))
sketch7.addConstraint(Sketcher.Constraint("Horizontal", 7))
sketch7.addConstraint(Sketcher.Constraint("Vertical", 3, 2, 4, 2))
sketch7.addConstraint(Sketcher.Constraint("Vertical", 2, 2, 5, 2))
sketch7.addConstraint(Sketcher.Constraint("Equal", 2, 4))
sketch7.addConstraint(Sketcher.Constraint("DistanceX", 1, 1, 1, 2, Q("5.1 mm")))
sketch7.addConstraint(Sketcher.Constraint("DistanceY", 0, 2, 0, 1, Q("0.4 mm")))
sketch7.addConstraint(Sketcher.Constraint("DistanceY", 4, 2, 3, 2, Q("12 mm")))
sketch7.addConstraint(Sketcher.Constraint("DistanceY", -1, 1, 0, 2, Q("15.1 mm")))
sketch7.addConstraint(Sketcher.Constraint("DistanceX", 0, 2, -1, 1, Q("24.768114 mm")))
sketch7.setExpression("Constraints[19]", "Params.sketch7_width")
sketch7.setExpression("Constraints[20]", "Params.sketch7_height")
pocket5 = body.newObject("PartDesign::Pocket", "Pocket004")
pocket5.Profile = sketch7
pocket5.setExpression("Length", "Params.pocket5_length")

sketch8 = body.newObject("Sketcher::SketchObject", "Sketch007")
sketch8.AttachmentSupport = (doc.getObject("XZ_Plane"), [""])
sketch8.MapMode = "FlatFace"
sketch8.AttachmentOffset = App.Placement(V(0, 0, -23.93024), App.Rotation())
sketch8.addGeometry(Part.LineSegment(V(-19.27, 15.5, 0), V(-19.27, 15.1, 0)), False)
sketch8.addGeometry(Part.LineSegment(V(-19.27, 15.1, 0), V(-17.57, 15.1, 0)), False)
sketch8.addGeometry(Part.LineSegment(V(-17.57, 15.1, 0), V(-17.57, 15.5, 0)), False)
sketch8.addGeometry(Part.LineSegment(V(-17.57, 15.5, 0), V(-19.27, 15.5, 0)), False)
sketch8.addGeometry(Part.LineSegment(V(-19.27, 3.9, 0), V(-19.27, 3.5, 0)), False)
sketch8.addGeometry(Part.LineSegment(V(-19.27, 3.5, 0), V(-17.57, 3.5, 0)), False)
sketch8.addGeometry(Part.LineSegment(V(-17.57, 3.5, 0), V(-17.57, 3.9, 0)), False)
sketch8.addGeometry(Part.LineSegment(V(-17.57, 3.9, 0), V(-19.27, 3.9, 0)), False)
sketch8.addConstraint(Sketcher.Constraint("Coincident", 0, 2, 1, 1))
sketch8.addConstraint(Sketcher.Constraint("Coincident", 1, 2, 2, 1))
sketch8.addConstraint(Sketcher.Constraint("Coincident", 2, 2, 3, 1))
sketch8.addConstraint(Sketcher.Constraint("Coincident", 3, 2, 0, 1))
sketch8.addConstraint(Sketcher.Constraint("Coincident", 4, 2, 5, 1))
sketch8.addConstraint(Sketcher.Constraint("Coincident", 5, 2, 6, 1))
sketch8.addConstraint(Sketcher.Constraint("Coincident", 6, 2, 7, 1))
sketch8.addConstraint(Sketcher.Constraint("Coincident", 7, 2, 4, 1))
sketch8.addConstraint(Sketcher.Constraint("Vertical", 0))
sketch8.addConstraint(Sketcher.Constraint("Horizontal", 1))
sketch8.addConstraint(Sketcher.Constraint("Vertical", 2))
sketch8.addConstraint(Sketcher.Constraint("Horizontal", 3))
sketch8.addConstraint(Sketcher.Constraint("Vertical", 4))
sketch8.addConstraint(Sketcher.Constraint("Horizontal", 5))
sketch8.addConstraint(Sketcher.Constraint("Vertical", 6))
sketch8.addConstraint(Sketcher.Constraint("Horizontal", 7))
sketch8.addConstraint(Sketcher.Constraint("Vertical", 3, 2, 4, 2))
sketch8.addConstraint(Sketcher.Constraint("Vertical", 2, 2, 5, 2))
sketch8.addConstraint(Sketcher.Constraint("Equal", 2, 4))
sketch8.addConstraint(Sketcher.Constraint("DistanceX", 1, 1, 1, 2, Q("1.7 mm")))
sketch8.addConstraint(Sketcher.Constraint("DistanceY", 0, 2, 0, 1, Q("0.4 mm")))
sketch8.addConstraint(Sketcher.Constraint("DistanceY", 4, 2, 3, 2, Q("12 mm")))
sketch8.addConstraint(Sketcher.Constraint("DistanceY", -1, 1, 0, 2, Q("15.1 mm")))
sketch8.addConstraint(Sketcher.Constraint("DistanceX", 0, 2, -1, 1, Q("19.268114 mm")))
sketch8.setExpression("Constraints[19]", "Params.sketch8_width")
sketch8.setExpression("Constraints[20]", "Params.sketch8_height")
pocket6 = body.newObject("PartDesign::Pocket", "Pocket005")
pocket6.Profile = sketch8
pocket6.setExpression("Length", "Params.pocket6_length")

sketch9 = body.newObject("Sketcher::SketchObject", "Sketch008")
sketch9.AttachmentSupport = (doc.getObject("XZ_Plane"), [""])
sketch9.MapMode = "FlatFace"
sketch9.AttachmentOffset = App.Placement(V(0, 0, -28.93024), App.Rotation())
sketch9.addGeometry(Part.LineSegment(V(-17.57, 15.5, 0), V(-17.57, 15.1, 0)), False)
sketch9.addGeometry(Part.LineSegment(V(-17.57, 15.1, 0), V(-24.77, 15.1, 0)), False)
sketch9.addGeometry(Part.LineSegment(V(-24.77, 15.1, 0), V(-24.77, 15.5, 0)), False)
sketch9.addGeometry(Part.LineSegment(V(-24.77, 15.5, 0), V(-17.57, 15.5, 0)), False)
sketch9.addGeometry(Part.LineSegment(V(-17.57, 3.9, 0), V(-17.57, 3.5, 0)), False)
sketch9.addGeometry(Part.LineSegment(V(-17.57, 3.5, 0), V(-24.77, 3.5, 0)), False)
sketch9.addGeometry(Part.LineSegment(V(-24.77, 3.5, 0), V(-24.77, 3.9, 0)), False)
sketch9.addGeometry(Part.LineSegment(V(-24.77, 3.9, 0), V(-17.57, 3.9, 0)), False)
sketch9.addConstraint(Sketcher.Constraint("Coincident", 0, 2, 1, 1))
sketch9.addConstraint(Sketcher.Constraint("Coincident", 1, 2, 2, 1))
sketch9.addConstraint(Sketcher.Constraint("Coincident", 2, 2, 3, 1))
sketch9.addConstraint(Sketcher.Constraint("Coincident", 3, 2, 0, 1))
sketch9.addConstraint(Sketcher.Constraint("Coincident", 4, 2, 5, 1))
sketch9.addConstraint(Sketcher.Constraint("Coincident", 5, 2, 6, 1))
sketch9.addConstraint(Sketcher.Constraint("Coincident", 6, 2, 7, 1))
sketch9.addConstraint(Sketcher.Constraint("Coincident", 7, 2, 4, 1))
sketch9.addConstraint(Sketcher.Constraint("Vertical", 0))
sketch9.addConstraint(Sketcher.Constraint("Horizontal", 1))
sketch9.addConstraint(Sketcher.Constraint("Vertical", 2))
sketch9.addConstraint(Sketcher.Constraint("Horizontal", 3))
sketch9.addConstraint(Sketcher.Constraint("Vertical", 4))
sketch9.addConstraint(Sketcher.Constraint("Horizontal", 5))
sketch9.addConstraint(Sketcher.Constraint("Vertical", 6))
sketch9.addConstraint(Sketcher.Constraint("Horizontal", 7))
sketch9.addConstraint(Sketcher.Constraint("Vertical", 3, 2, 4, 2))
sketch9.addConstraint(Sketcher.Constraint("Vertical", 2, 2, 5, 2))
sketch9.addConstraint(Sketcher.Constraint("Equal", 2, 4))
sketch9.addConstraint(Sketcher.Constraint("DistanceX", 1, 2, 1, 1, Q("7.2 mm")))
sketch9.addConstraint(Sketcher.Constraint("DistanceY", 0, 2, 0, 1, Q("0.4 mm")))
sketch9.addConstraint(Sketcher.Constraint("DistanceY", 4, 2, 3, 2, Q("12 mm")))
sketch9.addConstraint(Sketcher.Constraint("DistanceY", -1, 1, 0, 2, Q("15.1 mm")))
sketch9.addConstraint(Sketcher.Constraint("DistanceX", 0, 2, -1, 1, Q("17.568114 mm")))
sketch9.setExpression("Constraints[19]", "Params.sketch9_width")
sketch9.setExpression("Constraints[20]", "Params.sketch9_height")
pocket7 = body.newObject("PartDesign::Pocket", "Pocket006")
pocket7.Profile = sketch9
pocket7.setExpression("Length", "Params.pocket7_length")
pocket7.Reversed = True

sketch10 = body.newObject("Sketcher::SketchObject", "Sketch009")
sketch10.AttachmentSupport = (doc.getObject("XY_Plane"), [""])
sketch10.MapMode = "FlatFace"
sketch10.AttachmentOffset = App.Placement(V(0, 0, 6.25), App.Rotation())
sketch10.addGeometry(Part.LineSegment(V(-25.2, 9.9, 0), V(-25.2, 9.1, 0)), False)
sketch10.addGeometry(Part.LineSegment(V(-25.2, 9.1, 0), V(-22.2, 9.1, 0)), False)
sketch10.addGeometry(Part.LineSegment(V(-22.2, 9.1, 0), V(-22.2, 9.9, 0)), False)
sketch10.addGeometry(Part.LineSegment(V(-22.2, 9.9, 0), V(-25.2, 9.9, 0)), False)
sketch10.addConstraint(Sketcher.Constraint("Coincident", 0, 2, 1, 1))
sketch10.addConstraint(Sketcher.Constraint("Coincident", 1, 2, 2, 1))
sketch10.addConstraint(Sketcher.Constraint("Coincident", 2, 2, 3, 1))
sketch10.addConstraint(Sketcher.Constraint("Coincident", 3, 2, 0, 1))
sketch10.addConstraint(Sketcher.Constraint("Vertical", 0))
sketch10.addConstraint(Sketcher.Constraint("Horizontal", 1))
sketch10.addConstraint(Sketcher.Constraint("Vertical", 2))
sketch10.addConstraint(Sketcher.Constraint("Horizontal", 3))
sketch10.addConstraint(Sketcher.Constraint("DistanceX", 1, 1, 1, 2, Q("3 mm")))
sketch10.addConstraint(Sketcher.Constraint("DistanceY", 0, 2, 0, 1, Q("0.8 mm")))
sketch10.addConstraint(Sketcher.Constraint("DistanceY", -1, 1, 0, 2, Q("9.13024 mm")))
sketch10.addConstraint(Sketcher.Constraint("DistanceX", 0, 2, -1, 1, Q("25.168114 mm")))
sketch10.setExpression("Constraints[8]", "Params.sketch10_width")
sketch10.setExpression("Constraints[9]", "Params.sketch10_height")
pad3 = body.newObject("PartDesign::Pad", "Pad002")
pad3.Profile = sketch10
pad3.setExpression("Length", "Params.pad3_length")

sketch11 = body.newObject("Sketcher::SketchObject", "Sketch010")
sketch11.AttachmentSupport = (doc.getObject("XZ_Plane"), [""])
sketch11.MapMode = "FlatFace"
sketch11.AttachmentOffset = App.Placement(V(0, 0, -9.13024), App.Rotation())
sketch11.addGeometry(Part.LineSegment(V(-25.17, 12.75, 0), V(-25.17, 12.35, 0)), False)
sketch11.addGeometry(Part.LineSegment(V(-25.17, 12.35, 0), V(-22.17, 12.35, 0)), False)
sketch11.addGeometry(Part.LineSegment(V(-22.17, 12.35, 0), V(-22.17, 12.75, 0)), False)
sketch11.addGeometry(Part.LineSegment(V(-22.17, 12.75, 0), V(-25.17, 12.75, 0)), False)
sketch11.addGeometry(Part.LineSegment(V(-25.17, 6.65, 0), V(-25.17, 6.25, 0)), False)
sketch11.addGeometry(Part.LineSegment(V(-25.17, 6.25, 0), V(-22.17, 6.25, 0)), False)
sketch11.addGeometry(Part.LineSegment(V(-22.17, 6.25, 0), V(-22.17, 6.65, 0)), False)
sketch11.addGeometry(Part.LineSegment(V(-22.17, 6.65, 0), V(-25.17, 6.65, 0)), False)
sketch11.addConstraint(Sketcher.Constraint("Coincident", 0, 2, 1, 1))
sketch11.addConstraint(Sketcher.Constraint("Coincident", 1, 2, 2, 1))
sketch11.addConstraint(Sketcher.Constraint("Coincident", 2, 2, 3, 1))
sketch11.addConstraint(Sketcher.Constraint("Coincident", 3, 2, 0, 1))
sketch11.addConstraint(Sketcher.Constraint("Coincident", 4, 2, 5, 1))
sketch11.addConstraint(Sketcher.Constraint("Coincident", 5, 2, 6, 1))
sketch11.addConstraint(Sketcher.Constraint("Coincident", 6, 2, 7, 1))
sketch11.addConstraint(Sketcher.Constraint("Coincident", 7, 2, 4, 1))
sketch11.addConstraint(Sketcher.Constraint("Vertical", 0))
sketch11.addConstraint(Sketcher.Constraint("Horizontal", 1))
sketch11.addConstraint(Sketcher.Constraint("Vertical", 2))
sketch11.addConstraint(Sketcher.Constraint("Horizontal", 3))
sketch11.addConstraint(Sketcher.Constraint("Vertical", 4))
sketch11.addConstraint(Sketcher.Constraint("Horizontal", 5))
sketch11.addConstraint(Sketcher.Constraint("Vertical", 6))
sketch11.addConstraint(Sketcher.Constraint("Horizontal", 7))
sketch11.addConstraint(Sketcher.Constraint("Vertical", 3, 2, 4, 2))
sketch11.addConstraint(Sketcher.Constraint("Vertical", 2, 2, 5, 2))
sketch11.addConstraint(Sketcher.Constraint("Equal", 2, 4))
sketch11.addConstraint(Sketcher.Constraint("DistanceX", 1, 1, 1, 2, Q("3 mm")))
sketch11.addConstraint(Sketcher.Constraint("DistanceY", 0, 2, 0, 1, Q("0.4 mm")))
sketch11.addConstraint(Sketcher.Constraint("DistanceY", 4, 2, 0, 2, Q("6.1 mm")))
sketch11.addConstraint(Sketcher.Constraint("DistanceY", -1, 1, 0, 2, Q("12.35 mm")))
sketch11.addConstraint(Sketcher.Constraint("DistanceX", 0, 2, -1, 1, Q("25.168114 mm")))
sketch11.setExpression("Constraints[19]", "Params.sketch11_width")
sketch11.setExpression("Constraints[20]", "Params.sketch11_height")
pocket8 = body.newObject("PartDesign::Pocket", "Pocket007")
pocket8.Profile = sketch11
pocket8.setExpression("Length", "Params.pocket8_length")

doc.recompute()
